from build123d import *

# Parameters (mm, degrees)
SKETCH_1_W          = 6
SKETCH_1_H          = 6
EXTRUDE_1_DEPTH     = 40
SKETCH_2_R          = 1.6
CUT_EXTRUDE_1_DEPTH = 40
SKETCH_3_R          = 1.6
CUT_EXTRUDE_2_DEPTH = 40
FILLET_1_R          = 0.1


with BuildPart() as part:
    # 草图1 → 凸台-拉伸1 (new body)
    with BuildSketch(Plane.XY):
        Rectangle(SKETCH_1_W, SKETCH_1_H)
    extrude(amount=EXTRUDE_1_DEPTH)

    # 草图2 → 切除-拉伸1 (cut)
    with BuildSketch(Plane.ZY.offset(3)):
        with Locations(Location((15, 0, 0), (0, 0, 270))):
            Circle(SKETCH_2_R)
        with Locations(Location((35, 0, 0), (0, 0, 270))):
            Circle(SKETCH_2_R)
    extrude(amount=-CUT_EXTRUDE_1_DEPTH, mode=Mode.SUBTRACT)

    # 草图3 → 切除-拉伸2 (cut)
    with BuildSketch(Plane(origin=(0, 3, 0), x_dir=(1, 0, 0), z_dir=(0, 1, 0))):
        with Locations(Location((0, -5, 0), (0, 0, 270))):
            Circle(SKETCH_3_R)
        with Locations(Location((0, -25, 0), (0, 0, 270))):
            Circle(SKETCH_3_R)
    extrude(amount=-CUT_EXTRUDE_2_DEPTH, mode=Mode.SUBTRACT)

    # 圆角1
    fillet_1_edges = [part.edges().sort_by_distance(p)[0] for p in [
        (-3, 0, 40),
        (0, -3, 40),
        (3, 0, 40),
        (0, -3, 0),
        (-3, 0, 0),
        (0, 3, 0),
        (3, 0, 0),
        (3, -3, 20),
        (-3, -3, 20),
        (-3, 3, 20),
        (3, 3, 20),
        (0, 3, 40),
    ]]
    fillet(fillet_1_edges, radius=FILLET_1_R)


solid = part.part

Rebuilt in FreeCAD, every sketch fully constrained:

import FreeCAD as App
import Part
import Sketcher

V = App.Vector


def edges_at(feature, points):
    """Names of the edges that pass closest to the given points."""
    edges = feature.Shape.Edges
    near = lambda p: min(range(len(edges)), key=lambda i: edges[i].distToShape(Part.Vertex(*p))[0])
    return sorted({f"Edge{near(p) + 1}" for p in points})

doc = App.newDocument("Part")
body = doc.addObject("PartDesign::Body", "Body")

sketch1 = body.newObject("Sketcher::SketchObject", "Sketch")
sketch1.AttachmentSupport = (doc.getObject("XY_Plane"), [""])
sketch1.MapMode = "FlatFace"
sketch1.addGeometry(Part.LineSegment(V(-3, 3, 0), V(-3, -3, 0)), False)
sketch1.addGeometry(Part.LineSegment(V(-3, -3, 0), V(3, -3, 0)), False)
sketch1.addGeometry(Part.LineSegment(V(3, -3, 0), V(3, 3, 0)), False)
sketch1.addGeometry(Part.LineSegment(V(3, 3, 0), V(-3, 3, 0)), False)
sketch1.addConstraint(Sketcher.Constraint("Coincident", 0, 2, 1, 1))
sketch1.addConstraint(Sketcher.Constraint("Coincident", 1, 2, 2, 1))
sketch1.addConstraint(Sketcher.Constraint("Coincident", 2, 2, 3, 1))
sketch1.addConstraint(Sketcher.Constraint("Coincident", 3, 2, 0, 1))
sketch1.addConstraint(Sketcher.Constraint("Vertical", 0))
sketch1.addConstraint(Sketcher.Constraint("Horizontal", 1))
sketch1.addConstraint(Sketcher.Constraint("Vertical", 2))
sketch1.addConstraint(Sketcher.Constraint("Horizontal", 3))
sketch1.addConstraint(Sketcher.Constraint("Symmetric", 0, 2, 2, 2, -1, 1))
sketch1.addConstraint(Sketcher.Constraint("Equal", 3, 0))
sketch1.addConstraint(Sketcher.Constraint("DistanceX", 1, 1, 1, 2, 6.0))
pad1 = body.newObject("PartDesign::Pad", "Pad")
pad1.Profile = sketch1
pad1.Length = 40

sketch2 = body.newObject("Sketcher::SketchObject", "Sketch001")
sketch2.AttachmentSupport = (doc.getObject("YZ_Plane"), [""])
sketch2.MapMode = "FlatFace"
sketch2.AttachmentOffset = App.Placement(V(0, 0, -3), App.Rotation())
sketch2.addGeometry(Part.Circle(V(0, 15, 0), V(0, 0, 1), 1.6), False)
sketch2.addGeometry(Part.Circle(V(0, 35, 0), V(0, 0, 1), 1.6), False)
sketch2.addConstraint(Sketcher.Constraint("Equal", 0, 1))
sketch2.addConstraint(Sketcher.Constraint("PointOnObject", 0, 3, -2))
sketch2.addConstraint(Sketcher.Constraint("PointOnObject", 1, 3, -2))
sketch2.addConstraint(Sketcher.Constraint("Diameter", 0, 3.2))
sketch2.addConstraint(Sketcher.Constraint("DistanceY", -1, 1, 0, 3, 15.0))
sketch2.addConstraint(Sketcher.Constraint("DistanceY", -1, 1, 1, 3, 35.0))
pocket1 = body.newObject("PartDesign::Pocket", "Pocket")
pocket1.Profile = sketch2
pocket1.Length = 40
pocket1.Reversed = True

sketch3 = body.newObject("Sketcher::SketchObject", "Sketch002")
sketch3.AttachmentSupport = (doc.getObject("XZ_Plane"), [""])
sketch3.MapMode = "FlatFace"
sketch3.AttachmentOffset = App.Placement(V(0, 0, -3), App.Rotation())
sketch3.addGeometry(Part.Circle(V(0, 5, 0), V(0, 0, 1), 1.6), False)
sketch3.addGeometry(Part.Circle(V(0, 25, 0), V(0, 0, 1), 1.6), False)
sketch3.addConstraint(Sketcher.Constraint("Equal", 0, 1))
sketch3.addConstraint(Sketcher.Constraint("PointOnObject", 0, 3, -2))
sketch3.addConstraint(Sketcher.Constraint("PointOnObject", 1, 3, -2))
sketch3.addConstraint(Sketcher.Constraint("Diameter", 0, 3.2))
sketch3.addConstraint(Sketcher.Constraint("DistanceY", -1, 1, 0, 3, 5.0))
sketch3.addConstraint(Sketcher.Constraint("DistanceY", -1, 1, 1, 3, 25.0))
pocket2 = body.newObject("PartDesign::Pocket", "Pocket001")
pocket2.Profile = sketch3
pocket2.Length = 40
pocket2.Reversed = True
doc.recompute()

fillet = body.newObject("PartDesign::Fillet", "Fillet")
fillet.Base = (pocket2, edges_at(pocket2, [
    (-3, 0, 40),
    (0, -3, 40),
    (3, 0, 40),
    (0, -3, 0),
    (-3, 0, 0),
    (0, 3, 0),
    (3, 0, 0),
    (3, -3, 20),
    (-3, -3, 20),
    (-3, 3, 20),
    (3, 3, 20),
    (0, 3, 40),
]))
fillet.Radius = 0.1

doc.recompute()
